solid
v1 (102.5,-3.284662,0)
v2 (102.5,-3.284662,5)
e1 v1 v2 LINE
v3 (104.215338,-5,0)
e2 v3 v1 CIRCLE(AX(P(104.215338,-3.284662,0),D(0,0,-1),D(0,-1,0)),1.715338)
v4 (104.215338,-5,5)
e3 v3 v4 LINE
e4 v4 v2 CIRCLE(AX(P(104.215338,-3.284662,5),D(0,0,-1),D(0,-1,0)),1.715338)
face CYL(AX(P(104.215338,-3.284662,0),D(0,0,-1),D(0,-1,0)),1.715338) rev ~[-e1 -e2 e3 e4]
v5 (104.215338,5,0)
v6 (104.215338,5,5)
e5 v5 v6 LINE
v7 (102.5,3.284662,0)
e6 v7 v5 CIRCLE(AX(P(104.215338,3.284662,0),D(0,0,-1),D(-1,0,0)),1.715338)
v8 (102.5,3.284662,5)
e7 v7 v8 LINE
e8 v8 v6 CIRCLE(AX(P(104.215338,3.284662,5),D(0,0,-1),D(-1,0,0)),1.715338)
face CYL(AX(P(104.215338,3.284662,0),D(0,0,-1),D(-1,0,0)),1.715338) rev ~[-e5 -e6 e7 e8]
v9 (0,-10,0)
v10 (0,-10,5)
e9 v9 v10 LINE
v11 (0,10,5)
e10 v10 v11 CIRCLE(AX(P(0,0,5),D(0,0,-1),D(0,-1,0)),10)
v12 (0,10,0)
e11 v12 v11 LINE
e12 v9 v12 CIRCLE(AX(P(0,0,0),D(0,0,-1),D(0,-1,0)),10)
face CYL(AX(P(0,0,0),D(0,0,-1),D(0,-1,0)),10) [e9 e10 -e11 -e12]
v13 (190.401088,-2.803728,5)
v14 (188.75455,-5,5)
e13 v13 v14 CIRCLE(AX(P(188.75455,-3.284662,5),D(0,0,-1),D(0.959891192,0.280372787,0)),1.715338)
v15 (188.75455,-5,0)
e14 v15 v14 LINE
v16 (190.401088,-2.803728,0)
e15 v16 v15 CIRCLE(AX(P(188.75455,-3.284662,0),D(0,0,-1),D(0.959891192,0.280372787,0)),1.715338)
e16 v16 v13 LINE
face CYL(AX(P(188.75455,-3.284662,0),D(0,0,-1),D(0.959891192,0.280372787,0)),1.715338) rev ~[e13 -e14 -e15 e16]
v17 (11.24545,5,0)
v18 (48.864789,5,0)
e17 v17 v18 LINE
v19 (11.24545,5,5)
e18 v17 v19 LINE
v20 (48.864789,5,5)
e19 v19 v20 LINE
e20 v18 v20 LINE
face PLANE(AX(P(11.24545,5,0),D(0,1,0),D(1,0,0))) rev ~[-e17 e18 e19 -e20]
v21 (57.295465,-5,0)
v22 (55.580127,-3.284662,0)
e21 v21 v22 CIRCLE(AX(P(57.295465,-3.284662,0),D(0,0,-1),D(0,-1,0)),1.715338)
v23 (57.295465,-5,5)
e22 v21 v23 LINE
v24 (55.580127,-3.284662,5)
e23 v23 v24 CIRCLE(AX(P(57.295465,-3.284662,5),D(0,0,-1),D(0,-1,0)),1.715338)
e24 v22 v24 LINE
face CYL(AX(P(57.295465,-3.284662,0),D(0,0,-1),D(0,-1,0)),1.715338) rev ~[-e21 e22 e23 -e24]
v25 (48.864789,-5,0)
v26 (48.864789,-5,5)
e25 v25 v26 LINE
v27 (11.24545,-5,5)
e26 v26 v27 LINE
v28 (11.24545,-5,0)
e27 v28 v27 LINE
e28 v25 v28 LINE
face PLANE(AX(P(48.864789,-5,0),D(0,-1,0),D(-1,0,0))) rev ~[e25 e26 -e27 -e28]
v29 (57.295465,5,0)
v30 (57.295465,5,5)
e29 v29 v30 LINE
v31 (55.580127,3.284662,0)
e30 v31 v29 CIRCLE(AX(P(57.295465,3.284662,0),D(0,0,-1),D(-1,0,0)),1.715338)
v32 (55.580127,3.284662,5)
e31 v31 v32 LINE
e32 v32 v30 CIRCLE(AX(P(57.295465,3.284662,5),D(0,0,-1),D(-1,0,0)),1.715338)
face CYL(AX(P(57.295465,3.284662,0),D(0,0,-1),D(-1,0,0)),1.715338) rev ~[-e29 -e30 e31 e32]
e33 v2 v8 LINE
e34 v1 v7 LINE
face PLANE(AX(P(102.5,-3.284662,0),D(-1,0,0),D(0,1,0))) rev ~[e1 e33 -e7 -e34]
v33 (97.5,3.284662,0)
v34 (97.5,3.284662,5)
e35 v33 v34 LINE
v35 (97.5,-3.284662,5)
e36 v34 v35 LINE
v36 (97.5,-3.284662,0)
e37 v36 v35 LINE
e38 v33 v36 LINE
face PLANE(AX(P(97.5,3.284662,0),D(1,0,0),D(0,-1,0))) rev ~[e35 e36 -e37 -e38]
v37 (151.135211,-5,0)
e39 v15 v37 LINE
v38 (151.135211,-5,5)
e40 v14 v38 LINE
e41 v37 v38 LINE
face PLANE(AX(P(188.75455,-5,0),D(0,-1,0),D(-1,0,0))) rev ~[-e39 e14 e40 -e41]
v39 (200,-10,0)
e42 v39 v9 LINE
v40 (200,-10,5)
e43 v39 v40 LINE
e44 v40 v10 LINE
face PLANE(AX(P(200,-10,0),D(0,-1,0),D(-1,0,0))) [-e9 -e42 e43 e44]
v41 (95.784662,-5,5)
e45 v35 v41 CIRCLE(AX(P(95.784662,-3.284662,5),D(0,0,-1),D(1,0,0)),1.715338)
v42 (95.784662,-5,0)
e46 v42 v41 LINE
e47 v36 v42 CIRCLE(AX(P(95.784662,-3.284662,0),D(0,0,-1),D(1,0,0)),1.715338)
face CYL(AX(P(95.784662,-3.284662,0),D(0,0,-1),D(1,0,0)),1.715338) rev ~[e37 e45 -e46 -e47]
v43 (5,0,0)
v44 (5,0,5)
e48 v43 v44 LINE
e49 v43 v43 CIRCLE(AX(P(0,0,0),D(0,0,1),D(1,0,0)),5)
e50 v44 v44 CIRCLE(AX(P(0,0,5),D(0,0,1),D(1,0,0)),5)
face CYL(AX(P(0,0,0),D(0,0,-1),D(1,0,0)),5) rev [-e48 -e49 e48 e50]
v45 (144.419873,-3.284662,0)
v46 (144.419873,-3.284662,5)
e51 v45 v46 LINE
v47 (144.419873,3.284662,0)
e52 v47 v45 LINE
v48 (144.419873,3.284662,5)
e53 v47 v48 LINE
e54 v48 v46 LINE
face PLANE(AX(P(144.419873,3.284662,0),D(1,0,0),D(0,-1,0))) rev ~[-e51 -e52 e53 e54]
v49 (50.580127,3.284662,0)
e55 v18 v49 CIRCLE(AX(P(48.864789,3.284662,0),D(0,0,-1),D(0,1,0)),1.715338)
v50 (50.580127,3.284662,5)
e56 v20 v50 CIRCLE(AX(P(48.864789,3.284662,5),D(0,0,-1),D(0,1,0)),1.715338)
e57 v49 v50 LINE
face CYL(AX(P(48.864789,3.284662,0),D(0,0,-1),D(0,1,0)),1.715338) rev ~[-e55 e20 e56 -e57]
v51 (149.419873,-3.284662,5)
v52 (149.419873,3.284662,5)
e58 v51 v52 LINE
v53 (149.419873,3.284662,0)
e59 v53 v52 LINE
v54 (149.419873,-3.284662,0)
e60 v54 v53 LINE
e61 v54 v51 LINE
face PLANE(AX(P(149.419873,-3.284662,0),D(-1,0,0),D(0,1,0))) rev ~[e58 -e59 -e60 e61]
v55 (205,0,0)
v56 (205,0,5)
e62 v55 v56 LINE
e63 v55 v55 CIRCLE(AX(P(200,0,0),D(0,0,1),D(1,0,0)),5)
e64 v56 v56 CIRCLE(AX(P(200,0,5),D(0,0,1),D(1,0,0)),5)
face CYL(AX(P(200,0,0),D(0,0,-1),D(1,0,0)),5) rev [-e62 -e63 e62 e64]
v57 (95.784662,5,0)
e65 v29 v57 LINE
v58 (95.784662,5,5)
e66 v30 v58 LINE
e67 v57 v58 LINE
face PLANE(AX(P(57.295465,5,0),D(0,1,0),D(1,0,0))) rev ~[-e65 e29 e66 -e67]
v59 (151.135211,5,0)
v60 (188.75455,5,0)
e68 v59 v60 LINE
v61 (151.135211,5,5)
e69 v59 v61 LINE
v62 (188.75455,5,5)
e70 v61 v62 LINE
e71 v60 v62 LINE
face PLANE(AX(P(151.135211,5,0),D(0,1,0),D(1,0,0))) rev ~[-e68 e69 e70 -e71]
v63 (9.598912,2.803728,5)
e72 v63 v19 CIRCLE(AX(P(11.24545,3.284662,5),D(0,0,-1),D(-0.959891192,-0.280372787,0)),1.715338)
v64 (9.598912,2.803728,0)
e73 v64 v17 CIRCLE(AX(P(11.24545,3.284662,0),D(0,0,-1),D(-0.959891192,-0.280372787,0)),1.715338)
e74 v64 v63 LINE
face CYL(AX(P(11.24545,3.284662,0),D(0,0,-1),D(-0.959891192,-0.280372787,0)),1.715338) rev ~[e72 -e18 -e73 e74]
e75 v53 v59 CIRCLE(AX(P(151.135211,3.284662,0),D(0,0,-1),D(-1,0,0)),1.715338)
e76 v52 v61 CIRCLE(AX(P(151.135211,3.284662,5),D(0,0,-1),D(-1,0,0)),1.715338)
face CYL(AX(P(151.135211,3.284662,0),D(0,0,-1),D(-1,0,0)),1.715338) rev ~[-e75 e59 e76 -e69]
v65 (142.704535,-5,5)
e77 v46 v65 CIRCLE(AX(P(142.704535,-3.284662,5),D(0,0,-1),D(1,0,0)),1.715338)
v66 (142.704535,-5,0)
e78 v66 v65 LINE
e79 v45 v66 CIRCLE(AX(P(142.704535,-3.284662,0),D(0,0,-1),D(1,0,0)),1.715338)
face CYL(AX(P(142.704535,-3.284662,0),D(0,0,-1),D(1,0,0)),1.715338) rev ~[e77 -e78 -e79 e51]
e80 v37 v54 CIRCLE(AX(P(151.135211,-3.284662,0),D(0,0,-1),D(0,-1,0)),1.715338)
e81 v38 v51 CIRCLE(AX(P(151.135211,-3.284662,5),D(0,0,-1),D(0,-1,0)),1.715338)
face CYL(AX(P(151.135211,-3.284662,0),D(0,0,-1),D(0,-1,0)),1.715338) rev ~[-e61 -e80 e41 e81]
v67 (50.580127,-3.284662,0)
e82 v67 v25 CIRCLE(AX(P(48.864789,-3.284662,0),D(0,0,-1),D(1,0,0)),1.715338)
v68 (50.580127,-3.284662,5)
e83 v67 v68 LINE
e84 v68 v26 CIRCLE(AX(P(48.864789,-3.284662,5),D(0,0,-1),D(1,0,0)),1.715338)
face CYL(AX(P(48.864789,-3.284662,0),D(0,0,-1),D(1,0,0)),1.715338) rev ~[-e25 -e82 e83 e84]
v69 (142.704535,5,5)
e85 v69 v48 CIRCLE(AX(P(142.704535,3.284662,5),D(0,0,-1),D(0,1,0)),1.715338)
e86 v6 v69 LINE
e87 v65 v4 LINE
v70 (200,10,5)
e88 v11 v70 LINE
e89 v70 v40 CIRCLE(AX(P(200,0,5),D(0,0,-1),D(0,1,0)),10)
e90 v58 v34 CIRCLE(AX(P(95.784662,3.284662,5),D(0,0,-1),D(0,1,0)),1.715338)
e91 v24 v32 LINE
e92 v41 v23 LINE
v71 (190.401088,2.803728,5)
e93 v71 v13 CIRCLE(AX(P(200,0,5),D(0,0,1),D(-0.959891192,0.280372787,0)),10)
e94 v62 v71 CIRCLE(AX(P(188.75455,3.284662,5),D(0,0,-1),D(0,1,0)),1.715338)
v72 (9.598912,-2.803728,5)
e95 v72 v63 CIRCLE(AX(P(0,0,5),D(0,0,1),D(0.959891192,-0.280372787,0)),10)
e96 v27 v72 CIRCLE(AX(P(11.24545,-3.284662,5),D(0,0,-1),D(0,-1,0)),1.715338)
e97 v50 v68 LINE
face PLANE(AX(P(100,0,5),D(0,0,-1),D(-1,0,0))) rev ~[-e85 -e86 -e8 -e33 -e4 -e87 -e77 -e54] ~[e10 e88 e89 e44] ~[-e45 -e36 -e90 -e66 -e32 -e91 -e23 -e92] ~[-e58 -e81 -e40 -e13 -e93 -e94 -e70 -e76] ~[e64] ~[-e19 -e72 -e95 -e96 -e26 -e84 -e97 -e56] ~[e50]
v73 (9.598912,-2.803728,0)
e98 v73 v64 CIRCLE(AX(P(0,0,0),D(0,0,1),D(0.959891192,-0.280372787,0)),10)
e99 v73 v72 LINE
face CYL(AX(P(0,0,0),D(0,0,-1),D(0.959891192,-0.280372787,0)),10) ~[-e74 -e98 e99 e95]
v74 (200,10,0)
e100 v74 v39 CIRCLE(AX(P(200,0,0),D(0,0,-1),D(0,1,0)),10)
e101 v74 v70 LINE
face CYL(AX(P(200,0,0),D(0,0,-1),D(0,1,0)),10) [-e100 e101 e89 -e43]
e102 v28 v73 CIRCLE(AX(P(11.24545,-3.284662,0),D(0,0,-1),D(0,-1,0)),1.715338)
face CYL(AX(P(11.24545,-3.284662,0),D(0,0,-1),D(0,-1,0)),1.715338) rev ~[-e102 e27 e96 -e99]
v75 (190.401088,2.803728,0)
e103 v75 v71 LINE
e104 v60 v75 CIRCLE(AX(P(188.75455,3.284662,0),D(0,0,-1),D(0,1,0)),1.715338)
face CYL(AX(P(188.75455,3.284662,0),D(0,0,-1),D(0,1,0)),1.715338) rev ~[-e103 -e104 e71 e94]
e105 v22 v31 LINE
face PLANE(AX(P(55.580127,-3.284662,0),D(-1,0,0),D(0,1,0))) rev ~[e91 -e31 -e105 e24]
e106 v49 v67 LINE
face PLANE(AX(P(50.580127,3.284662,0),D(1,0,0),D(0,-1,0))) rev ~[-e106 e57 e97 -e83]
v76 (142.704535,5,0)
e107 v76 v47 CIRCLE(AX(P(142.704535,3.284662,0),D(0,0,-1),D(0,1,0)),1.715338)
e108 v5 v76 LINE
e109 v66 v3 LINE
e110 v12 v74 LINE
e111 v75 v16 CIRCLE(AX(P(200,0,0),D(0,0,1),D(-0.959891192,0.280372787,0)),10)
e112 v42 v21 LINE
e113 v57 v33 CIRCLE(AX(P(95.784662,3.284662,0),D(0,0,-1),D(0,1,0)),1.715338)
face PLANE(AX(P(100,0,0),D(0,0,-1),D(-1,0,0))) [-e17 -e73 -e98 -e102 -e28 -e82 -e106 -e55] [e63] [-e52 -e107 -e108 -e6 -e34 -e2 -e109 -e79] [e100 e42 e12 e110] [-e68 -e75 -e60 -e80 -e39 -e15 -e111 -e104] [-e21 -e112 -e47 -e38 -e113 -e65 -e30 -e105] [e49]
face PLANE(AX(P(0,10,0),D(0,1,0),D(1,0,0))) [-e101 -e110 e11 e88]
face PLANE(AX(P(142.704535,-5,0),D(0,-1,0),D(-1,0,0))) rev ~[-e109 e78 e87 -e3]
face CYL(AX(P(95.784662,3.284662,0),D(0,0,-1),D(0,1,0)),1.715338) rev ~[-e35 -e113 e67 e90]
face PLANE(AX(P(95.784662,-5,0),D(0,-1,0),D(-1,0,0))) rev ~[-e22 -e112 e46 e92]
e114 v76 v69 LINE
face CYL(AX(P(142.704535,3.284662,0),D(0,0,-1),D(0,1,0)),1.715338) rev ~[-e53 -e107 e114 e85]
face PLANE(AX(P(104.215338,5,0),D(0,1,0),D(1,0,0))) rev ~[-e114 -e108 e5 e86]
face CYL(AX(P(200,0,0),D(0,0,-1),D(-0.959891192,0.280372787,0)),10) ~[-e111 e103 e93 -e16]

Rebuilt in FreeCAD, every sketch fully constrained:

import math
import FreeCAD as App
import Part
import Sketcher
from FreeCAD import Vector
Q = App.Units.Quantity

doc = App.newDocument("Part")
body = doc.addObject("PartDesign::Body", "Body")

# Sketch on XY plane
sketch1 = body.newObject("Sketcher::SketchObject", "Sketch")
sketch1.AttachmentSupport = (doc.getObject("XY_Plane"), [""])
sketch1.MapMode = "FlatFace"
sketch1.addGeometry(Part.LineSegment(Vector(200, 10, 0), Vector(0, 10, 0)), False)
sketch1.addGeometry(Part.ArcOfCircle(Part.Circle(Vector(0, 0, 0), Vector(0, 0, 1), 10), math.radians(90), math.radians(270)), False)
sketch1.addGeometry(Part.LineSegment(Vector(0, -10, 0), Vector(200, -10, 0)), False)
sketch1.addGeometry(Part.ArcOfCircle(Part.Circle(Vector(200, 0, 0), Vector(0, 0, 1), 10), math.radians(-90), math.radians(90)), False)
sketch1.addGeometry(Part.Circle(Vector(200, 0, 0), Vector(0, 0, 1), 5), False)
sketch1.addGeometry(Part.LineSegment(Vector(188.8, -5, 0), Vector(151.1, -5, 0)), False)
sketch1.addGeometry(Part.ArcOfCircle(Part.Circle(Vector(151.1, -3.3, 0), Vector(0, 0, 1), 1.7), math.radians(180), math.radians(270)), False)
sketch1.addGeometry(Part.LineSegment(Vector(149.4, -3.3, 0), Vector(149.4, 3.3, 0)), False)
sketch1.addGeometry(Part.ArcOfCircle(Part.Circle(Vector(151.1, 3.3, 0), Vector(0, 0, 1), 1.7), math.radians(90), math.radians(180)), False)
sketch1.addGeometry(Part.LineSegment(Vector(151.1, 5, 0), Vector(188.8, 5, 0)), False)
sketch1.addGeometry(Part.ArcOfCircle(Part.Circle(Vector(188.8, 3.3, 0), Vector(0, 0, 1), 1.7), math.radians(-16), math.radians(90)), False)
sketch1.addGeometry(Part.ArcOfCircle(Part.Circle(Vector(200, 0, 0), Vector(0, 0, 1), 10), math.radians(164), math.radians(196)), False)
sketch1.addGeometry(Part.ArcOfCircle(Part.Circle(Vector(188.8, -3.3, 0), Vector(0, 0, 1), 1.7), math.radians(-90), math.radians(16)), False)
sketch1.addGeometry(Part.LineSegment(Vector(104.2, 5, 0), Vector(142.7, 5, 0)), False)
sketch1.addGeometry(Part.ArcOfCircle(Part.Circle(Vector(142.7, 3.3, 0), Vector(0, 0, 1), 1.7), math.radians(0), math.radians(90)), False)
sketch1.addGeometry(Part.LineSegment(Vector(144.4, 3.3, 0), Vector(144.4, -3.3, 0)), False)
sketch1.addGeometry(Part.ArcOfCircle(Part.Circle(Vector(142.7, -3.3, 0), Vector(0, 0, 1), 1.7), math.radians(-90), math.radians(0)), False)
sketch1.addGeometry(Part.LineSegment(Vector(142.7, -5, 0), Vector(104.2, -5, 0)), False)
sketch1.addGeometry(Part.ArcOfCircle(Part.Circle(Vector(104.2, -3.3, 0), Vector(0, 0, 1), 1.7), math.radians(180), math.radians(270)), False)
sketch1.addGeometry(Part.LineSegment(Vector(102.5, -3.3, 0), Vector(102.5, 3.3, 0)), False)
sketch1.addGeometry(Part.ArcOfCircle(Part.Circle(Vector(104.2, 3.3, 0), Vector(0, 0, 1), 1.7), math.radians(90), math.radians(180)), False)
sketch1.addGeometry(Part.LineSegment(Vector(95.8, -5, 0), Vector(57.3, -5, 0)), False)
sketch1.addGeometry(Part.ArcOfCircle(Part.Circle(Vector(57.3, -3.3, 0), Vector(0, 0, 1), 1.7), math.radians(180), math.radians(270)), False)
sketch1.addGeometry(Part.LineSegment(Vector(55.6, -3.3, 0), Vector(55.6, 3.3, 0)), False)
sketch1.addGeometry(Part.ArcOfCircle(Part.Circle(Vector(57.3, 3.3, 0), Vector(0, 0, 1), 1.7), math.radians(90), math.radians(180)), False)
sketch1.addGeometry(Part.LineSegment(Vector(57.3, 5, 0), Vector(95.8, 5, 0)), False)
sketch1.addGeometry(Part.ArcOfCircle(Part.Circle(Vector(95.8, 3.3, 0), Vector(0, 0, 1), 1.7), math.radians(0), math.radians(90)), False)
sketch1.addGeometry(Part.LineSegment(Vector(97.5, 3.3, 0), Vector(97.5, -3.3, 0)), False)
sketch1.addGeometry(Part.ArcOfCircle(Part.Circle(Vector(95.8, -3.3, 0), Vector(0, 0, 1), 1.7), math.radians(-90), math.radians(0)), False)
sketch1.addGeometry(Part.LineSegment(Vector(11.2, 5, 0), Vector(48.9, 5, 0)), False)
sketch1.addGeometry(Part.ArcOfCircle(Part.Circle(Vector(48.9, 3.3, 0), Vector(0, 0, 1), 1.7), math.radians(0), math.radians(90)), False)
sketch1.addGeometry(Part.LineSegment(Vector(50.6, 3.3, 0), Vector(50.6, -3.3, 0)), False)
sketch1.addGeometry(Part.ArcOfCircle(Part.Circle(Vector(48.9, -3.3, 0), Vector(0, 0, 1), 1.7), math.radians(-90), math.radians(0)), False)
sketch1.addGeometry(Part.LineSegment(Vector(48.9, -5, 0), Vector(11.2, -5, 0)), False)
sketch1.addGeometry(Part.ArcOfCircle(Part.Circle(Vector(11.2, -3.3, 0), Vector(0, 0, 1), 1.7), math.radians(164), math.radians(270)), False)
sketch1.addGeometry(Part.ArcOfCircle(Part.Circle(Vector(0, 0, 0), Vector(0, 0, 1), 10), math.radians(-16), math.radians(16)), False)
sketch1.addGeometry(Part.ArcOfCircle(Part.Circle(Vector(11.2, 3.3, 0), Vector(0, 0, 1), 1.7), math.radians(90), math.radians(196)), False)
sketch1.addGeometry(Part.Circle(Vector(0, 0, 0), Vector(0, 0, 1), 5), False)
sketch1.addConstraint(Sketcher.Constraint("Tangent", 0, 2, 1, 1))
sketch1.addConstraint(Sketcher.Constraint("Tangent", 1, 2, 2, 1))
sketch1.addConstraint(Sketcher.Constraint("Tangent", 2, 2, 3, 1))
sketch1.addConstraint(Sketcher.Constraint("Tangent", 3, 2, 0, 1))
sketch1.addConstraint(Sketcher.Constraint("Tangent", 5, 2, 6, 2))
sketch1.addConstraint(Sketcher.Constraint("Tangent", 6, 1, 7, 1))
sketch1.addConstraint(Sketcher.Constraint("Tangent", 7, 2, 8, 2))
sketch1.addConstraint(Sketcher.Constraint("Tangent", 8, 1, 9, 1))
sketch1.addConstraint(Sketcher.Constraint("Tangent", 9, 2, 10, 2))
sketch1.addConstraint(Sketcher.Constraint("Tangent", 10, 1, 11, 1))
sketch1.addConstraint(Sketcher.Constraint("Tangent", 11, 2, 12, 2))
sketch1.addConstraint(Sketcher.Constraint("Tangent", 12, 1, 5, 1))
sketch1.addConstraint(Sketcher.Constraint("Tangent", 13, 2, 14, 2))
sketch1.addConstraint(Sketcher.Constraint("Tangent", 14, 1, 15, 1))
sketch1.addConstraint(Sketcher.Constraint("Tangent", 15, 2, 16, 2))
sketch1.addConstraint(Sketcher.Constraint("Tangent", 16, 1, 17, 1))
sketch1.addConstraint(Sketcher.Constraint("Tangent", 17, 2, 18, 2))
sketch1.addConstraint(Sketcher.Constraint("Tangent", 18, 1, 19, 1))
sketch1.addConstraint(Sketcher.Constraint("Tangent", 19, 2, 20, 2))
sketch1.addConstraint(Sketcher.Constraint("Tangent", 20, 1, 13, 1))
sketch1.addConstraint(Sketcher.Constraint("Tangent", 21, 2, 22, 2))
sketch1.addConstraint(Sketcher.Constraint("Tangent", 22, 1, 23, 1))
sketch1.addConstraint(Sketcher.Constraint("Tangent", 23, 2, 24, 2))
sketch1.addConstraint(Sketcher.Constraint("Tangent", 24, 1, 25, 1))
sketch1.addConstraint(Sketcher.Constraint("Tangent", 25, 2, 26, 2))
sketch1.addConstraint(Sketcher.Constraint("Tangent", 26, 1, 27, 1))
sketch1.addConstraint(Sketcher.Constraint("Tangent", 27, 2, 28, 2))
sketch1.addConstraint(Sketcher.Constraint("Tangent", 28, 1, 21, 1))
sketch1.addConstraint(Sketcher.Constraint("Tangent", 29, 2, 30, 2))
sketch1.addConstraint(Sketcher.Constraint("Tangent", 30, 1, 31, 1))
sketch1.addConstraint(Sketcher.Constraint("Tangent", 31, 2, 32, 2))
sketch1.addConstraint(Sketcher.Constraint("Tangent", 32, 1, 33, 1))
sketch1.addConstraint(Sketcher.Constraint("Tangent", 33, 2, 34, 2))
sketch1.addConstraint(Sketcher.Constraint("Tangent", 34, 1, 35, 1))
sketch1.addConstraint(Sketcher.Constraint("Tangent", 35, 2, 36, 2))
sketch1.addConstraint(Sketcher.Constraint("Tangent", 36, 1, 29, 1))
sketch1.addConstraint(Sketcher.Constraint("Horizontal", 0))
sketch1.addConstraint(Sketcher.Constraint("Horizontal", 2))
sketch1.addConstraint(Sketcher.Constraint("Horizontal", 5))
sketch1.addConstraint(Sketcher.Constraint("Vertical", 7))
sketch1.addConstraint(Sketcher.Constraint("Horizontal", 9))
sketch1.addConstraint(Sketcher.Constraint("Horizontal", 13))
sketch1.addConstraint(Sketcher.Constraint("Vertical", 15))
sketch1.addConstraint(Sketcher.Constraint("Horizontal", 17))
sketch1.addConstraint(Sketcher.Constraint("Vertical", 19))
sketch1.addConstraint(Sketcher.Constraint("Horizontal", 21))
sketch1.addConstraint(Sketcher.Constraint("Vertical", 23))
sketch1.addConstraint(Sketcher.Constraint("Horizontal", 25))
sketch1.addConstraint(Sketcher.Constraint("Vertical", 27))
sketch1.addConstraint(Sketcher.Constraint("Horizontal", 29))
sketch1.addConstraint(Sketcher.Constraint("Vertical", 31))
sketch1.addConstraint(Sketcher.Constraint("Horizontal", 33))
sketch1.addConstraint(Sketcher.Constraint("Coincident", 1, 3, -1, 1))
sketch1.addConstraint(Sketcher.Constraint("Coincident", 35, 3, -1, 1))
sketch1.addConstraint(Sketcher.Constraint("Coincident", 37, 3, -1, 1))
sketch1.addConstraint(Sketcher.Constraint("Coincident", 4, 3, 3, 3))
sketch1.addConstraint(Sketcher.Constraint("Coincident", 11, 3, 3, 3))
sketch1.addConstraint(Sketcher.Constraint("Equal", 6, 8))
sketch1.addConstraint(Sketcher.Constraint("Equal", 8, 10))
sketch1.addConstraint(Sketcher.Constraint("Equal", 3, 11))
sketch1.addConstraint(Sketcher.Constraint("Equal", 10, 12))
sketch1.addConstraint(Sketcher.Constraint("Equal", 12, 14))
sketch1.addConstraint(Sketcher.Constraint("Equal", 14, 16))
sketch1.addConstraint(Sketcher.Constraint("Equal", 16, 18))
sketch1.addConstraint(Sketcher.Constraint("Equal", 18, 20))
sketch1.addConstraint(Sketcher.Constraint("Equal", 20, 22))
sketch1.addConstraint(Sketcher.Constraint("Equal", 22, 24))
sketch1.addConstraint(Sketcher.Constraint("Equal", 24, 26))
sketch1.addConstraint(Sketcher.Constraint("Equal", 26, 28))
sketch1.addConstraint(Sketcher.Constraint("Equal", 28, 30))
sketch1.addConstraint(Sketcher.Constraint("Equal", 30, 32))
sketch1.addConstraint(Sketcher.Constraint("Equal", 32, 34))
sketch1.addConstraint(Sketcher.Constraint("Equal", 11, 35))
sketch1.addConstraint(Sketcher.Constraint("Equal", 34, 36))
sketch1.addConstraint(Sketcher.Constraint("Equal", 4, 37))
sketch1.addConstraint(Sketcher.Constraint("Horizontal", 10, 3, 14, 3))
sketch1.addConstraint(Sketcher.Constraint("Horizontal", 12, 3, 16, 3))
sketch1.addConstraint(Sketcher.Constraint("Horizontal", 18, 3, 22, 3))
sketch1.addConstraint(Sketcher.Constraint("Horizontal", 20, 3, 24, 3))
sketch1.addConstraint(Sketcher.Constraint("Horizontal", 26, 3, 30, 3))
sketch1.addConstraint(Sketcher.Constraint("Horizontal", 28, 3, 32, 3))
sketch1.addConstraint(Sketcher.Constraint("Vertical", 10, 3, 12, 3))
sketch1.addConstraint(Sketcher.Constraint("Equal", 17, 21))
sketch1.addConstraint(Sketcher.Constraint("Equal", 9, 29))
sketch1.addConstraint(Sketcher.Constraint("Diameter", 4, Q("10 mm")))
sketch1.addConstraint(Sketcher.Constraint("Radius", 1, Q("10 mm")))
sketch1.addConstraint(Sketcher.Constraint("DistanceX", 0, 2, 0, 1, Q("200 mm")))
sketch1.addConstraint(Sketcher.Constraint("DistanceY", 5, 2, -1, 1, Q("5 mm")))
sketch1.addConstraint(Sketcher.Constraint("DistanceX", 14, 1, 7, 2, Q("5 mm")))
sketch1.addConstraint(Sketcher.Constraint("DistanceX", 26, 1, 19, 2, Q("5 mm")))
sketch1.addConstraint(Sketcher.Constraint("DistanceX", 30, 1, 23, 2, Q("5 mm")))
sketch1.addConstraint(Sketcher.Constraint("Radius", 6, Q("1.715338 mm")))
sketch1.addConstraint(Sketcher.Constraint("DistanceX", 5, 2, 5, 1, Q("37.619339 mm")))
pad1 = body.newObject("PartDesign::Pad", "Pad")
pad1.Profile = sketch1
pad1.Length = 5

doc.recompute()
